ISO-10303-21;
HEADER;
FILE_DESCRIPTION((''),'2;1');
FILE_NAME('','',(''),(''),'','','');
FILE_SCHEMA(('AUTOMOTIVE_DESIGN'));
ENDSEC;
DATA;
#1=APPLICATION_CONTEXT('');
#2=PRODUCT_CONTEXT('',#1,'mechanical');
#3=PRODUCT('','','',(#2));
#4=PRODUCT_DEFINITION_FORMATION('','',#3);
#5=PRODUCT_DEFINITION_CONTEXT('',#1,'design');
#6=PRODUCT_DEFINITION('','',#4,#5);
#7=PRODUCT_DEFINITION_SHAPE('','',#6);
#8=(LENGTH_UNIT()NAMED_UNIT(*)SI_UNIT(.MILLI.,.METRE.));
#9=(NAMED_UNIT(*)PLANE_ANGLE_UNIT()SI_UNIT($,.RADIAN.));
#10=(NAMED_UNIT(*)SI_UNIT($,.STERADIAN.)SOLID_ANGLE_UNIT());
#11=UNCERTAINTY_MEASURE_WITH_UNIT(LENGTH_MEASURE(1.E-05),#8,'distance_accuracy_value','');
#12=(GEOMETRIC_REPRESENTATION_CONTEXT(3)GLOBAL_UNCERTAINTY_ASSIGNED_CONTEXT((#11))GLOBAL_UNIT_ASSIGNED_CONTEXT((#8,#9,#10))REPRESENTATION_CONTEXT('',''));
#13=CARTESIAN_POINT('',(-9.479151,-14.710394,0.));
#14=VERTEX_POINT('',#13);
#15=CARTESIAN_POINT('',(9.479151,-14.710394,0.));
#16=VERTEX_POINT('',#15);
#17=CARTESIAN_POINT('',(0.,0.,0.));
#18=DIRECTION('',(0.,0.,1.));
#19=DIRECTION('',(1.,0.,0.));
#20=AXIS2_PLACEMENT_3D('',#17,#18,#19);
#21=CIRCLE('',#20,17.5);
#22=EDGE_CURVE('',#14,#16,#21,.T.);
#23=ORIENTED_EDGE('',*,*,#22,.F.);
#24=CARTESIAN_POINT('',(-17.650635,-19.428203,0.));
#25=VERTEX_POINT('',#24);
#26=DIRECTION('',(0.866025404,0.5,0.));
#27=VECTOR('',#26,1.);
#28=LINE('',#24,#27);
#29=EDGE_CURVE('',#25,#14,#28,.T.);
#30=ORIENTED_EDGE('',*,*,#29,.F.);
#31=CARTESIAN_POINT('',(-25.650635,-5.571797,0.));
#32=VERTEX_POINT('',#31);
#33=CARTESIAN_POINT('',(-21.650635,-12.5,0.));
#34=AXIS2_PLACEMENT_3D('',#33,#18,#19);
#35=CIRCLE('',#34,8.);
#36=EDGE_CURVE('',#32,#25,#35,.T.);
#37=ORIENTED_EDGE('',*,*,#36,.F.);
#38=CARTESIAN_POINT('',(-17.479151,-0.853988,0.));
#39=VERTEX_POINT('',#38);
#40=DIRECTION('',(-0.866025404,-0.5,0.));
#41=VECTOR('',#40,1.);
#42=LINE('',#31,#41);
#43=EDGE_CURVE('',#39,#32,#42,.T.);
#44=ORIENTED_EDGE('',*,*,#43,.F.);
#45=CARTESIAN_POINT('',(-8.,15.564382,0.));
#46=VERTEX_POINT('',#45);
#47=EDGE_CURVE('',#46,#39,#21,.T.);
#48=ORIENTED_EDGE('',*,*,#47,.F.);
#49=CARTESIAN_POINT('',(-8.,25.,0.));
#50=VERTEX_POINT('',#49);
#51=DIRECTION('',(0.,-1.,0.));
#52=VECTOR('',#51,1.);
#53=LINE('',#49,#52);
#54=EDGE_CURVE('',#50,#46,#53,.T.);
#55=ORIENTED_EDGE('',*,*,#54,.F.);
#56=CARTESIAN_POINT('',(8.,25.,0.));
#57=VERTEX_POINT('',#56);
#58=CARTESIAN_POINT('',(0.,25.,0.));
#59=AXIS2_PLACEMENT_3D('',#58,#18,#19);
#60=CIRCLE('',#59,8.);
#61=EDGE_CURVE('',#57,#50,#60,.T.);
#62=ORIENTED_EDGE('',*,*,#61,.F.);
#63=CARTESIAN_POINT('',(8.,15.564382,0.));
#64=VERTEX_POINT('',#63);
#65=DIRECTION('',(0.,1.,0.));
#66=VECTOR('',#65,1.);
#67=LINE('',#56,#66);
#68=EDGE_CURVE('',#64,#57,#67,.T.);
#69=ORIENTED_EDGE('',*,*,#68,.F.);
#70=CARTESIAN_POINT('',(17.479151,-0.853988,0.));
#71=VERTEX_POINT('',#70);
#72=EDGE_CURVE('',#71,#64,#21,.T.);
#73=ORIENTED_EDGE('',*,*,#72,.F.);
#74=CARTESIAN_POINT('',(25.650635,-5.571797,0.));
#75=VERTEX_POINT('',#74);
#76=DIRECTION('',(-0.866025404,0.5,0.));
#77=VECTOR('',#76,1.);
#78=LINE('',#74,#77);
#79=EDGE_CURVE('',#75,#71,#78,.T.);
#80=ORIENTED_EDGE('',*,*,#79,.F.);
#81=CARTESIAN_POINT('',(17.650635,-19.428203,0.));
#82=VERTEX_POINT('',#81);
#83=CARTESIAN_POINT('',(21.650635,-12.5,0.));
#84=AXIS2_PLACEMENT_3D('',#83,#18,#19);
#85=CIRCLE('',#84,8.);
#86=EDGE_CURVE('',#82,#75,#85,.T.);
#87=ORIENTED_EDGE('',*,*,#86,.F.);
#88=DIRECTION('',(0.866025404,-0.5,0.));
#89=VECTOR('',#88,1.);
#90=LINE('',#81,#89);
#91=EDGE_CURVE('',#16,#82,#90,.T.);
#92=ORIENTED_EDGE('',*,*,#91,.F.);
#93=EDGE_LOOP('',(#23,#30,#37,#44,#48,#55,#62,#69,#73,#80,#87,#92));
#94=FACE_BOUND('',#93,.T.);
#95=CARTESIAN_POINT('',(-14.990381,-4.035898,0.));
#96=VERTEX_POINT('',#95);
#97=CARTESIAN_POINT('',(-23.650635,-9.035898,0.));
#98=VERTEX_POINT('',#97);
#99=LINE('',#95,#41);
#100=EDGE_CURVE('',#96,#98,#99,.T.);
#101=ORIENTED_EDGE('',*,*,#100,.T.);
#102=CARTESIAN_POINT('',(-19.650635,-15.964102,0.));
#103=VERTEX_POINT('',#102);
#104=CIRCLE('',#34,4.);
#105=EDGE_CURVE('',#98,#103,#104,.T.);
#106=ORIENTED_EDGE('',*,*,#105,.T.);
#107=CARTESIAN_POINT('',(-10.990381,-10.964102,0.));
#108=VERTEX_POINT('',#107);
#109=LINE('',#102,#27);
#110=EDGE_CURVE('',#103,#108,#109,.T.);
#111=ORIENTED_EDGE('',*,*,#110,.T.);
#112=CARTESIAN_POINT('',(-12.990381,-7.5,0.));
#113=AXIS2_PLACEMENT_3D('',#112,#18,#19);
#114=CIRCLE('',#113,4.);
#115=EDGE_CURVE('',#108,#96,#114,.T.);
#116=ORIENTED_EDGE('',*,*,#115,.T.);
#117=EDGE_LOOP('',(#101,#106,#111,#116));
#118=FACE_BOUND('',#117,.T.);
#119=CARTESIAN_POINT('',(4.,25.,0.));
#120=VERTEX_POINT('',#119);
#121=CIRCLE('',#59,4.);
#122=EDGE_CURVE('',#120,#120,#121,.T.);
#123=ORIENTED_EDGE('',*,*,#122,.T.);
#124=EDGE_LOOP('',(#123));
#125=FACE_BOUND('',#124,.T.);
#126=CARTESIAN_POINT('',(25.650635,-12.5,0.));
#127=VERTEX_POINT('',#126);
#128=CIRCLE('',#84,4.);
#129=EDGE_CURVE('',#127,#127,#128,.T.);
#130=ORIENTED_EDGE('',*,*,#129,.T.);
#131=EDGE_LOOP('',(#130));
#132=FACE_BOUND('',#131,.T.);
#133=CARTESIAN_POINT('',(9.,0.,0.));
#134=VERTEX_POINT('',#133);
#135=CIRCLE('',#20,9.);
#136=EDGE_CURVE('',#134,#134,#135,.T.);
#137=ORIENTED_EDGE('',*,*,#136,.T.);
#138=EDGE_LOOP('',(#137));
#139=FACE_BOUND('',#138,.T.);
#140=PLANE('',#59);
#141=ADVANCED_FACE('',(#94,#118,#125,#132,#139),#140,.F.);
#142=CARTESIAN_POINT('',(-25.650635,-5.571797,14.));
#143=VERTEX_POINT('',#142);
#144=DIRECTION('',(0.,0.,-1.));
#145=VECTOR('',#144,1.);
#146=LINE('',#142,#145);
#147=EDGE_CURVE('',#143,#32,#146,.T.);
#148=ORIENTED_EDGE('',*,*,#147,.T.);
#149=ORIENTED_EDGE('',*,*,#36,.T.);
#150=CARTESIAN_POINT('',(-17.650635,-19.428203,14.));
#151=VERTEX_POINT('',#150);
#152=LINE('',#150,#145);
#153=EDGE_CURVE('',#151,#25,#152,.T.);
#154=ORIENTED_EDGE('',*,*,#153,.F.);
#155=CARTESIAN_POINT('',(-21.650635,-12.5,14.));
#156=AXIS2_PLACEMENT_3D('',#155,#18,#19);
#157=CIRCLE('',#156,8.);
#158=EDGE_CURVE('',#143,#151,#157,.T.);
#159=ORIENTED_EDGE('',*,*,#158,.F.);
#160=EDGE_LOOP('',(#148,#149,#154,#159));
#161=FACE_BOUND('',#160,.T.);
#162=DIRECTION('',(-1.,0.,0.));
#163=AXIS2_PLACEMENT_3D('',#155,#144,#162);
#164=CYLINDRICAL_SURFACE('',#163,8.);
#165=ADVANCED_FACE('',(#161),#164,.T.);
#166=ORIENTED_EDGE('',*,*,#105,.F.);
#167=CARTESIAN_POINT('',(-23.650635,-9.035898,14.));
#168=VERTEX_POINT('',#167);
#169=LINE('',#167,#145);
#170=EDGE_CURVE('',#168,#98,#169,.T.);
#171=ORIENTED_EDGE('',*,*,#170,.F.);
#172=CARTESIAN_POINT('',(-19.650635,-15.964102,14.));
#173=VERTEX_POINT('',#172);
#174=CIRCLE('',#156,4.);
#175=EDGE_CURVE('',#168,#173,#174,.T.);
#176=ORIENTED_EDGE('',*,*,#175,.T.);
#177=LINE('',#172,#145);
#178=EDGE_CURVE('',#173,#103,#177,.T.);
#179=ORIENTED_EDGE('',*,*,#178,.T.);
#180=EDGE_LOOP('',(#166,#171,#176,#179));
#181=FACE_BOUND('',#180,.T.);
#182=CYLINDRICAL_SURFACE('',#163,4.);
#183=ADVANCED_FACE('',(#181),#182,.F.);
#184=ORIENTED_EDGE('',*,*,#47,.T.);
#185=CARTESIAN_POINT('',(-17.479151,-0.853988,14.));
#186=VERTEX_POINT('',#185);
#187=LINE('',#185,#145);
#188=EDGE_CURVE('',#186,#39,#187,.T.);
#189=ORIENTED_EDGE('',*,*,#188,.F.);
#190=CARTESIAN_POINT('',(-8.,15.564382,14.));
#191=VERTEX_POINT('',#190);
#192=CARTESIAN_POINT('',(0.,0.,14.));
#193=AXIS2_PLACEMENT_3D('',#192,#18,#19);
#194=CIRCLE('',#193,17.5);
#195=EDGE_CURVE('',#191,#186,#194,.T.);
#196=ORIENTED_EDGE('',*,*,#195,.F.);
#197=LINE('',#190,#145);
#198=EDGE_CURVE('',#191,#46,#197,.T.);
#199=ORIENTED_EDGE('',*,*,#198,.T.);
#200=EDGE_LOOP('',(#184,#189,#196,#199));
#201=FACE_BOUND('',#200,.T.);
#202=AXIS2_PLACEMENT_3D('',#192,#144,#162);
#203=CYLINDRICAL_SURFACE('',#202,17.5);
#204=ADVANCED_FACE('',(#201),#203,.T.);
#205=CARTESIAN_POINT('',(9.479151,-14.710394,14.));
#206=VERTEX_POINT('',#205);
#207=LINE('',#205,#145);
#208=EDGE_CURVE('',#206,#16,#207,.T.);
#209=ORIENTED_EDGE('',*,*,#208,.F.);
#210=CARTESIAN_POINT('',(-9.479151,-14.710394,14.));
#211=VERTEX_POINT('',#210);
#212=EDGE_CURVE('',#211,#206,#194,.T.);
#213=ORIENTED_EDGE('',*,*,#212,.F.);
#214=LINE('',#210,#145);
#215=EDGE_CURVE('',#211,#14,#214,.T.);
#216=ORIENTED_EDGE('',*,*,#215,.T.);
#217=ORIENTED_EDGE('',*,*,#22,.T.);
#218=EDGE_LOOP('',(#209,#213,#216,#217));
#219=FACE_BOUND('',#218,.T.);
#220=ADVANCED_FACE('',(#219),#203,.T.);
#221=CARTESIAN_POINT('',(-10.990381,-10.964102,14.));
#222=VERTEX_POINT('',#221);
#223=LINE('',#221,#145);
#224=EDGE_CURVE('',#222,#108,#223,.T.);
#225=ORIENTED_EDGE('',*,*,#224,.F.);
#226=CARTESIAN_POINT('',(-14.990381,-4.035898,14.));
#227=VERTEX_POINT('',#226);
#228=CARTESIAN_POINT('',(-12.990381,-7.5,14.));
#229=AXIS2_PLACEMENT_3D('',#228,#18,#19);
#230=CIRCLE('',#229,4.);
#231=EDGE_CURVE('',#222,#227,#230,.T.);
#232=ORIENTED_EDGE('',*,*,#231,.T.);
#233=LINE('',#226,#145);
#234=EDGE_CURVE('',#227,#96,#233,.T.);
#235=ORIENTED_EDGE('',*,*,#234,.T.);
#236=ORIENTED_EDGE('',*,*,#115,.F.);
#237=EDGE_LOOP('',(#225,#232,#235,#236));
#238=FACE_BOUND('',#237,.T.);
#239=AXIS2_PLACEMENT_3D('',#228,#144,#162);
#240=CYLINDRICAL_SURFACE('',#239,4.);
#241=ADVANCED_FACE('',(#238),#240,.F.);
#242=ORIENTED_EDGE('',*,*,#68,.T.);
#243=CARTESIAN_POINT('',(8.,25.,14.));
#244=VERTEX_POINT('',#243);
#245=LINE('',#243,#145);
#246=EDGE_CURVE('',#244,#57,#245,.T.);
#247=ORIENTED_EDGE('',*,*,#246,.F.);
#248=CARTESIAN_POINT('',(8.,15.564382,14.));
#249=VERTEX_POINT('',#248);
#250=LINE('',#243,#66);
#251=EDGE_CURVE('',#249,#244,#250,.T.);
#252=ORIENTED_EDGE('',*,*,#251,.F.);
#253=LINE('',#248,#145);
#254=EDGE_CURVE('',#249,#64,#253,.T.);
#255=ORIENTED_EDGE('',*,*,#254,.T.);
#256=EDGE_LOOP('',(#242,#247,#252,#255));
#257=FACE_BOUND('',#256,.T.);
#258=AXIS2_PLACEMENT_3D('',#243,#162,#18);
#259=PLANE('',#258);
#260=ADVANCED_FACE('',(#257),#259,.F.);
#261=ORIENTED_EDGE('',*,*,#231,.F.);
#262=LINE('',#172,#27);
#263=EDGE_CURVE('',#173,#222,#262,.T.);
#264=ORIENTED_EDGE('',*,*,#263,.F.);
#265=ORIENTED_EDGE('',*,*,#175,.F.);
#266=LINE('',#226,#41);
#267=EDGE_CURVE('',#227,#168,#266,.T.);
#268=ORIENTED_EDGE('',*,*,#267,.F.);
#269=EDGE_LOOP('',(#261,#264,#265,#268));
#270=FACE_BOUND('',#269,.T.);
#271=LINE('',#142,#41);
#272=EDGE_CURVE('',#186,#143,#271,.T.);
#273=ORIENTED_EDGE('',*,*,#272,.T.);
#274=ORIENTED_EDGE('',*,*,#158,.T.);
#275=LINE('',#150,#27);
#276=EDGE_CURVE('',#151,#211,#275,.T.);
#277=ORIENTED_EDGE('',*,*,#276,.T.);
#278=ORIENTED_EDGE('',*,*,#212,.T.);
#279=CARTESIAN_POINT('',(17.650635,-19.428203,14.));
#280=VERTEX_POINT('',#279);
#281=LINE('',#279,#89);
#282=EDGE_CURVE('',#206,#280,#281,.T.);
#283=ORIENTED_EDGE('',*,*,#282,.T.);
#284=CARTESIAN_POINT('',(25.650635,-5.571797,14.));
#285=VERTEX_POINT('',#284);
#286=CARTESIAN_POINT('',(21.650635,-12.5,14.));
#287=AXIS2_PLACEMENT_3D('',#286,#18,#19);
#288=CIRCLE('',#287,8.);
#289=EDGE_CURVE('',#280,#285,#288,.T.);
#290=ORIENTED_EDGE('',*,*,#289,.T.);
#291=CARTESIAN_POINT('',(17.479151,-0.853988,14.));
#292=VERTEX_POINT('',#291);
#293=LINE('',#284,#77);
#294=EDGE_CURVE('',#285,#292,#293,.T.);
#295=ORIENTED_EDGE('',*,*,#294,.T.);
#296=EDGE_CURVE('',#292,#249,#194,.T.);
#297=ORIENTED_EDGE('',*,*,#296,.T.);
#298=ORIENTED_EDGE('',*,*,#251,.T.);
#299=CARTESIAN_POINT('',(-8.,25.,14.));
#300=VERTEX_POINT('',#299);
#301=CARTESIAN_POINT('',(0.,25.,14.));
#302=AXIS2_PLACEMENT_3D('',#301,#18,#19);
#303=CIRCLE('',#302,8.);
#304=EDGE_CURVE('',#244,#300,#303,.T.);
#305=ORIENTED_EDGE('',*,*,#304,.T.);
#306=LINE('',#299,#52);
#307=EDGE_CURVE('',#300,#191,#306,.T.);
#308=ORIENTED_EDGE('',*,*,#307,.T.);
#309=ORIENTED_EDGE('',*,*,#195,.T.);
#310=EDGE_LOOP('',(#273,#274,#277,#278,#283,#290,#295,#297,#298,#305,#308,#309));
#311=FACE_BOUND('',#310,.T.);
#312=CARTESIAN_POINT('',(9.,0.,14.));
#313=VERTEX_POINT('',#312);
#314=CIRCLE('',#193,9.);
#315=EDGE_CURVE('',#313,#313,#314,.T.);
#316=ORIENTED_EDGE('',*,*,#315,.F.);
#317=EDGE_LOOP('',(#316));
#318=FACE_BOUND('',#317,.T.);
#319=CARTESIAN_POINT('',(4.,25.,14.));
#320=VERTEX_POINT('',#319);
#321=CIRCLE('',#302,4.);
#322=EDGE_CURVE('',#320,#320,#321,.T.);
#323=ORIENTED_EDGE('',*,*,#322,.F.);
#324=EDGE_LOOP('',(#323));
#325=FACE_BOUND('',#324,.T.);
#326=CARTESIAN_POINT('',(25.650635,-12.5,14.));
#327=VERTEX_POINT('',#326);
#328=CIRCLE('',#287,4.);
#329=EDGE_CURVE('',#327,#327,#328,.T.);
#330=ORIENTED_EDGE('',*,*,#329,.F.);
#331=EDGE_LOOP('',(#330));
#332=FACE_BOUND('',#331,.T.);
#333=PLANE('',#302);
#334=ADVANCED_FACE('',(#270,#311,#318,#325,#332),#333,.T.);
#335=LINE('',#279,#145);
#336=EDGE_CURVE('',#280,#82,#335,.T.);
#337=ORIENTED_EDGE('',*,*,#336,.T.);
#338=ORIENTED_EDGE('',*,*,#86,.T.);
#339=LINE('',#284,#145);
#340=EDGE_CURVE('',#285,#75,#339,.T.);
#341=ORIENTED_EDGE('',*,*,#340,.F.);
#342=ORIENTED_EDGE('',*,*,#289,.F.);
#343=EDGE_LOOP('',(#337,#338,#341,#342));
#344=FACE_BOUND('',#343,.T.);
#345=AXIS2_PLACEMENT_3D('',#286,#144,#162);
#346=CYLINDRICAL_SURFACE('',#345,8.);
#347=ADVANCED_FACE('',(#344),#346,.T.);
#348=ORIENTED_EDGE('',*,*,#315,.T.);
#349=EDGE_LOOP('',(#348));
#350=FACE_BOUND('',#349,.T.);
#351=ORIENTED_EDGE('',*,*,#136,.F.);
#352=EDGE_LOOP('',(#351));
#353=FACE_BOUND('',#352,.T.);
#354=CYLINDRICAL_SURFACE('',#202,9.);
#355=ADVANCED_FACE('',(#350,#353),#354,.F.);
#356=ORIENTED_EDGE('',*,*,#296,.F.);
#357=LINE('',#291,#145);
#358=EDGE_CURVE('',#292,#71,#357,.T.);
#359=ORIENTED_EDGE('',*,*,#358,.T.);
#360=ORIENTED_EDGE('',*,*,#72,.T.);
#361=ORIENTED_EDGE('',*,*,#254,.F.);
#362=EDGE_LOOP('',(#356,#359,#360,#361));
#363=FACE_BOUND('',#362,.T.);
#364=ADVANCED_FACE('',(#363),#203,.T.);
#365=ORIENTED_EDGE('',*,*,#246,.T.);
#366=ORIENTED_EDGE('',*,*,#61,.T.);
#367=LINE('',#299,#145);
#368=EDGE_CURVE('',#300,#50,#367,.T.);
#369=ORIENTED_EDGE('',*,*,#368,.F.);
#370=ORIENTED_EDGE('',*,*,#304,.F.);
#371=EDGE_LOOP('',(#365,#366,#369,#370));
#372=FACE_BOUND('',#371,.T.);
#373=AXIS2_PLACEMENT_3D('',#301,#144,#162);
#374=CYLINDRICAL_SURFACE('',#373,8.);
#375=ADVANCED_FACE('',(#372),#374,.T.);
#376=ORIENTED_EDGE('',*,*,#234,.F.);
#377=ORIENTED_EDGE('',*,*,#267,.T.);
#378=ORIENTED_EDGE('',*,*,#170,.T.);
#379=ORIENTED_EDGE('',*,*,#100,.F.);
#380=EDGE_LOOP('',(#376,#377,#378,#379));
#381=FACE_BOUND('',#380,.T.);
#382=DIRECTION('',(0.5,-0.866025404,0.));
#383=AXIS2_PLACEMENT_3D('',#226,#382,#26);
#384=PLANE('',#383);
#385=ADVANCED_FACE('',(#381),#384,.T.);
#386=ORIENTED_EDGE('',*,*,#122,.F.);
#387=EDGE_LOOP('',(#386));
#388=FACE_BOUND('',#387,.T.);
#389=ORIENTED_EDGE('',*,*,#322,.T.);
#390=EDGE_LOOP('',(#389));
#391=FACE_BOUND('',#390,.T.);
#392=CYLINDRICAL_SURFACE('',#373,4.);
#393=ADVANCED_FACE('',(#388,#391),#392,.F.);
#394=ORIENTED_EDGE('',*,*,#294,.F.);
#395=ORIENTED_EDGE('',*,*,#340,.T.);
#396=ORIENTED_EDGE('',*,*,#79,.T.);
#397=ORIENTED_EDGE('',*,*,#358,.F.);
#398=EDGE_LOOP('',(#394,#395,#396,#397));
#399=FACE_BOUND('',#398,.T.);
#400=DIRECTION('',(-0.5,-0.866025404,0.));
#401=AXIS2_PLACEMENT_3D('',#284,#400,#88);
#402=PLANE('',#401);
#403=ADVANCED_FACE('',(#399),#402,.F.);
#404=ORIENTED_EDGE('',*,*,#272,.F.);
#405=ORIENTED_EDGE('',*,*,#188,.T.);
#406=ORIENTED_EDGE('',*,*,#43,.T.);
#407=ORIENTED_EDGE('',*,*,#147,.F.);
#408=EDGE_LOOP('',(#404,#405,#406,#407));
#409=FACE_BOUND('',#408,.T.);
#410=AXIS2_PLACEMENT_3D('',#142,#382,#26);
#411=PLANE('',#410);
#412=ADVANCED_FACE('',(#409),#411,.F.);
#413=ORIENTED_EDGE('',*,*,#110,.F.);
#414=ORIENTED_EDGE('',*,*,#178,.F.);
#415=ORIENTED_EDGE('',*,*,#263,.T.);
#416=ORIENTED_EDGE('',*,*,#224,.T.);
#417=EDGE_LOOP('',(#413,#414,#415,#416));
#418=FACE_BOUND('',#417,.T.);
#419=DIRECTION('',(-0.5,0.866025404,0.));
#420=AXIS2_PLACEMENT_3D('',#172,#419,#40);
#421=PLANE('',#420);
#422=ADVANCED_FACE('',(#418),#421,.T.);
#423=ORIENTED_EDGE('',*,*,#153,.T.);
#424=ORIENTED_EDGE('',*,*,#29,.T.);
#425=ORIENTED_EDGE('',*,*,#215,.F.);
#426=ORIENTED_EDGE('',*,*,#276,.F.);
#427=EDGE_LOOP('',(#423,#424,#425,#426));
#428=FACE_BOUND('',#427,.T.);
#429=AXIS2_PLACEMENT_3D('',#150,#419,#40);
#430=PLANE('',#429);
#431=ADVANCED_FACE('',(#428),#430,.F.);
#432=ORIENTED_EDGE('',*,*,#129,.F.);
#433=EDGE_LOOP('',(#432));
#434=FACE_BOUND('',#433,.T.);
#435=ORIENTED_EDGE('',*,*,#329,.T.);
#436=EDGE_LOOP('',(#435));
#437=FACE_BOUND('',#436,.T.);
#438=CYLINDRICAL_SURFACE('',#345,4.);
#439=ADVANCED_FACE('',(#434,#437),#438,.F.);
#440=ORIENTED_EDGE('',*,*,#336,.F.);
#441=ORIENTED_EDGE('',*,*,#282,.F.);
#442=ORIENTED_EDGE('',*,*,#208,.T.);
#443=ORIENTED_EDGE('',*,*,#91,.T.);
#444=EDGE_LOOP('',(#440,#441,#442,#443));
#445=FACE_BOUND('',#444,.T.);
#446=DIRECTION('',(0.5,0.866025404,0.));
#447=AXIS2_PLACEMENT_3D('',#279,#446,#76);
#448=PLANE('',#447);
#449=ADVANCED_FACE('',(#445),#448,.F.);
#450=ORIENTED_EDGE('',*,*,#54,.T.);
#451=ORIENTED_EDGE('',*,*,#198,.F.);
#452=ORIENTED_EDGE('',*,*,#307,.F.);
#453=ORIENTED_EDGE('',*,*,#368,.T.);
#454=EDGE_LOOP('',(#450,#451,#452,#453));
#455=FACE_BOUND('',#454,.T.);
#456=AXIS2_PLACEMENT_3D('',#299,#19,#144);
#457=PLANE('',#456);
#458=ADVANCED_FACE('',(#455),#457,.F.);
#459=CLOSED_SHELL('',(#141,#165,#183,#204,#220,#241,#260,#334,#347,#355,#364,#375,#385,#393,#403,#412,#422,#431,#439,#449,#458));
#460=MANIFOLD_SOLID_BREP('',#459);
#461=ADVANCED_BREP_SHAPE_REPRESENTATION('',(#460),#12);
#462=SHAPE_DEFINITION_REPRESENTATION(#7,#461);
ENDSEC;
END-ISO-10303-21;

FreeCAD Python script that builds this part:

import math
import FreeCAD as App
import Part
import Sketcher

V = App.Vector
Q = App.Units.Quantity

doc = App.newDocument("Part")
body = doc.addObject("PartDesign::Body", "Body")

sketch1 = doc.addObject("Sketcher::SketchObject", "Sketch")
body.addObject(sketch1)
sketch1.AttachmentSupport = (doc.XY_Plane, [""])
sketch1.MapMode = "FlatFace"
sketch1.addGeometry(Part.LineSegment(V(-8, 25, 0), V(-8, 15.6, 0)), False)
sketch1.addGeometry(Part.ArcOfCircle(Part.Circle(V(0, 0, 0), V(0, 0, 1), 17.5), math.radians(117), math.radians(183)), False)
sketch1.addGeometry(Part.LineSegment(V(-17.5, -0.9, 0), V(-25.7, -5.6, 0)), False)
sketch1.addGeometry(Part.ArcOfCircle(Part.Circle(V(-21.7, -12.5, 0), V(0, 0, 1), 8), math.radians(120), math.radians(300)), False)
sketch1.addGeometry(Part.LineSegment(V(-17.7, -19.4, 0), V(-9.5, -14.7, 0)), False)
sketch1.addGeometry(Part.ArcOfCircle(Part.Circle(V(0, 0, 0), V(0, 0, 1), 17.5), math.radians(-123), math.radians(-57)), False)
sketch1.addGeometry(Part.LineSegment(V(9.5, -14.7, 0), V(17.7, -19.4, 0)), False)
sketch1.addGeometry(Part.ArcOfCircle(Part.Circle(V(21.7, -12.5, 0), V(0, 0, 1), 8), math.radians(-120), math.radians(60)), False)
sketch1.addGeometry(Part.LineSegment(V(25.7, -5.6, 0), V(17.5, -0.9, 0)), False)
sketch1.addGeometry(Part.ArcOfCircle(Part.Circle(V(0, 0, 0), V(0, 0, 1), 17.5), math.radians(-3), math.radians(63)), False)
sketch1.addGeometry(Part.LineSegment(V(8, 15.6, 0), V(8, 25, 0)), False)
sketch1.addGeometry(Part.ArcOfCircle(Part.Circle(V(0, 25, 0), V(0, 0, 1), 8), math.radians(0), math.radians(180)), False)
sketch1.addGeometry(Part.LineSegment(V(-23.7, -9, 0), V(-15, -4, 0)), False)
sketch1.addGeometry(Part.ArcOfCircle(Part.Circle(V(-13, -7.5, 0), V(0, 0, 1), 4), math.radians(-60), math.radians(120)), False)
sketch1.addGeometry(Part.LineSegment(V(-11, -11, 0), V(-19.7, -16, 0)), False)
sketch1.addGeometry(Part.ArcOfCircle(Part.Circle(V(-21.7, -12.5, 0), V(0, 0, 1), 4), math.radians(120), math.radians(300)), False)
sketch1.addGeometry(Part.Circle(V(0, 0, 0), V(0, 0, 1), 9), False)
sketch1.addGeometry(Part.Circle(V(21.7, -12.5, 0), V(0, 0, 1), 4), False)
sketch1.addGeometry(Part.Circle(V(0, 25, 0), V(0, 0, 1), 4), False)
sketch1.addConstraint(Sketcher.Constraint("Coincident", 0, 2, 1, 1))
sketch1.addConstraint(Sketcher.Constraint("Coincident", 1, 2, 2, 1))
sketch1.addConstraint(Sketcher.Constraint("Tangent", 2, 2, 3, 1))
sketch1.addConstraint(Sketcher.Constraint("Tangent", 3, 2, 4, 1))
sketch1.addConstraint(Sketcher.Constraint("Coincident", 4, 2, 5, 1))
sketch1.addConstraint(Sketcher.Constraint("Coincident", 5, 2, 6, 1))
sketch1.addConstraint(Sketcher.Constraint("Tangent", 6, 2, 7, 1))
sketch1.addConstraint(Sketcher.Constraint("Tangent", 7, 2, 8, 1))
sketch1.addConstraint(Sketcher.Constraint("Coincident", 8, 2, 9, 1))
sketch1.addConstraint(Sketcher.Constraint("Coincident", 9, 2, 10, 1))
sketch1.addConstraint(Sketcher.Constraint("Tangent", 10, 2, 11, 1))
sketch1.addConstraint(Sketcher.Constraint("Tangent", 11, 2, 0, 1))
sketch1.addConstraint(Sketcher.Constraint("Tangent", 12, 2, 13, 2))
sketch1.addConstraint(Sketcher.Constraint("Tangent", 13, 1, 14, 1))
sketch1.addConstraint(Sketcher.Constraint("Tangent", 14, 2, 15, 2))
sketch1.addConstraint(Sketcher.Constraint("Tangent", 15, 1, 12, 1))
sketch1.addConstraint(Sketcher.Constraint("Vertical", 0))
sketch1.addConstraint(Sketcher.Constraint("Vertical", 10))
sketch1.addConstraint(Sketcher.Constraint("Coincident", 1, 3, -1, 1))
sketch1.addConstraint(Sketcher.Constraint("Coincident", 5, 3, -1, 1))
sketch1.addConstraint(Sketcher.Constraint("Coincident", 9, 3, -1, 1))
sketch1.addConstraint(Sketcher.Constraint("Coincident", 16, 3, -1, 1))
sketch1.addConstraint(Sketcher.Constraint("Coincident", 15, 3, 3, 3))
sketch1.addConstraint(Sketcher.Constraint("Coincident", 17, 3, 7, 3))
sketch1.addConstraint(Sketcher.Constraint("Coincident", 18, 3, 11, 3))
sketch1.addConstraint(Sketcher.Constraint("Equal", 1, 5))
sketch1.addConstraint(Sketcher.Constraint("Equal", 3, 7))
sketch1.addConstraint(Sketcher.Constraint("Equal", 5, 9))
sketch1.addConstraint(Sketcher.Constraint("Equal", 7, 11))
sketch1.addConstraint(Sketcher.Constraint("Equal", 13, 15))
sketch1.addConstraint(Sketcher.Constraint("Equal", 15, 17))
sketch1.addConstraint(Sketcher.Constraint("Equal", 17, 18))
sketch1.addConstraint(Sketcher.Constraint("Symmetric", 3, 3, 7, 3, -2))
sketch1.addConstraint(Sketcher.Constraint("PointOnObject", 11, 3, -2))
sketch1.addConstraint(Sketcher.Constraint("Parallel", 2, 4))
sketch1.addConstraint(Sketcher.Constraint("Parallel", 6, 8))
sketch1.addConstraint(Sketcher.Constraint("Parallel", 4, 12))
sketch1.addConstraint(Sketcher.Constraint("Horizontal", 4, 2, 5, 2))
sketch1.addConstraint(Sketcher.Constraint("Equal", 2, 4))
sketch1.addConstraint(Sketcher.Constraint("Diameter", 16, Q("18 mm")))
sketch1.addConstraint(Sketcher.Constraint("Diameter", 17, Q("8 mm")))
sketch1.addConstraint(Sketcher.Constraint("Radius", 3, Q("8 mm")))
sketch1.addConstraint(Sketcher.Constraint("Radius", 1, Q("17.5 mm")))
sketch1.addConstraint(Sketcher.Constraint("Angle", 2, Q("-150 deg")))
sketch1.addConstraint(Sketcher.Constraint("Distance", 12, Q("10 mm")))
sketch1.addConstraint(Sketcher.Constraint("DistanceY", -1, 1, 11, 3, Q("25 mm")))
sketch1.addConstraint(Sketcher.Constraint("DistanceY", 3, 3, -1, 1, Q("12.5 mm")))
pad1 = doc.addObject("PartDesign::Pad", "Pad")
body.addObject(pad1)
pad1.Profile = sketch1
pad1.Length = 14

doc.recompute()
